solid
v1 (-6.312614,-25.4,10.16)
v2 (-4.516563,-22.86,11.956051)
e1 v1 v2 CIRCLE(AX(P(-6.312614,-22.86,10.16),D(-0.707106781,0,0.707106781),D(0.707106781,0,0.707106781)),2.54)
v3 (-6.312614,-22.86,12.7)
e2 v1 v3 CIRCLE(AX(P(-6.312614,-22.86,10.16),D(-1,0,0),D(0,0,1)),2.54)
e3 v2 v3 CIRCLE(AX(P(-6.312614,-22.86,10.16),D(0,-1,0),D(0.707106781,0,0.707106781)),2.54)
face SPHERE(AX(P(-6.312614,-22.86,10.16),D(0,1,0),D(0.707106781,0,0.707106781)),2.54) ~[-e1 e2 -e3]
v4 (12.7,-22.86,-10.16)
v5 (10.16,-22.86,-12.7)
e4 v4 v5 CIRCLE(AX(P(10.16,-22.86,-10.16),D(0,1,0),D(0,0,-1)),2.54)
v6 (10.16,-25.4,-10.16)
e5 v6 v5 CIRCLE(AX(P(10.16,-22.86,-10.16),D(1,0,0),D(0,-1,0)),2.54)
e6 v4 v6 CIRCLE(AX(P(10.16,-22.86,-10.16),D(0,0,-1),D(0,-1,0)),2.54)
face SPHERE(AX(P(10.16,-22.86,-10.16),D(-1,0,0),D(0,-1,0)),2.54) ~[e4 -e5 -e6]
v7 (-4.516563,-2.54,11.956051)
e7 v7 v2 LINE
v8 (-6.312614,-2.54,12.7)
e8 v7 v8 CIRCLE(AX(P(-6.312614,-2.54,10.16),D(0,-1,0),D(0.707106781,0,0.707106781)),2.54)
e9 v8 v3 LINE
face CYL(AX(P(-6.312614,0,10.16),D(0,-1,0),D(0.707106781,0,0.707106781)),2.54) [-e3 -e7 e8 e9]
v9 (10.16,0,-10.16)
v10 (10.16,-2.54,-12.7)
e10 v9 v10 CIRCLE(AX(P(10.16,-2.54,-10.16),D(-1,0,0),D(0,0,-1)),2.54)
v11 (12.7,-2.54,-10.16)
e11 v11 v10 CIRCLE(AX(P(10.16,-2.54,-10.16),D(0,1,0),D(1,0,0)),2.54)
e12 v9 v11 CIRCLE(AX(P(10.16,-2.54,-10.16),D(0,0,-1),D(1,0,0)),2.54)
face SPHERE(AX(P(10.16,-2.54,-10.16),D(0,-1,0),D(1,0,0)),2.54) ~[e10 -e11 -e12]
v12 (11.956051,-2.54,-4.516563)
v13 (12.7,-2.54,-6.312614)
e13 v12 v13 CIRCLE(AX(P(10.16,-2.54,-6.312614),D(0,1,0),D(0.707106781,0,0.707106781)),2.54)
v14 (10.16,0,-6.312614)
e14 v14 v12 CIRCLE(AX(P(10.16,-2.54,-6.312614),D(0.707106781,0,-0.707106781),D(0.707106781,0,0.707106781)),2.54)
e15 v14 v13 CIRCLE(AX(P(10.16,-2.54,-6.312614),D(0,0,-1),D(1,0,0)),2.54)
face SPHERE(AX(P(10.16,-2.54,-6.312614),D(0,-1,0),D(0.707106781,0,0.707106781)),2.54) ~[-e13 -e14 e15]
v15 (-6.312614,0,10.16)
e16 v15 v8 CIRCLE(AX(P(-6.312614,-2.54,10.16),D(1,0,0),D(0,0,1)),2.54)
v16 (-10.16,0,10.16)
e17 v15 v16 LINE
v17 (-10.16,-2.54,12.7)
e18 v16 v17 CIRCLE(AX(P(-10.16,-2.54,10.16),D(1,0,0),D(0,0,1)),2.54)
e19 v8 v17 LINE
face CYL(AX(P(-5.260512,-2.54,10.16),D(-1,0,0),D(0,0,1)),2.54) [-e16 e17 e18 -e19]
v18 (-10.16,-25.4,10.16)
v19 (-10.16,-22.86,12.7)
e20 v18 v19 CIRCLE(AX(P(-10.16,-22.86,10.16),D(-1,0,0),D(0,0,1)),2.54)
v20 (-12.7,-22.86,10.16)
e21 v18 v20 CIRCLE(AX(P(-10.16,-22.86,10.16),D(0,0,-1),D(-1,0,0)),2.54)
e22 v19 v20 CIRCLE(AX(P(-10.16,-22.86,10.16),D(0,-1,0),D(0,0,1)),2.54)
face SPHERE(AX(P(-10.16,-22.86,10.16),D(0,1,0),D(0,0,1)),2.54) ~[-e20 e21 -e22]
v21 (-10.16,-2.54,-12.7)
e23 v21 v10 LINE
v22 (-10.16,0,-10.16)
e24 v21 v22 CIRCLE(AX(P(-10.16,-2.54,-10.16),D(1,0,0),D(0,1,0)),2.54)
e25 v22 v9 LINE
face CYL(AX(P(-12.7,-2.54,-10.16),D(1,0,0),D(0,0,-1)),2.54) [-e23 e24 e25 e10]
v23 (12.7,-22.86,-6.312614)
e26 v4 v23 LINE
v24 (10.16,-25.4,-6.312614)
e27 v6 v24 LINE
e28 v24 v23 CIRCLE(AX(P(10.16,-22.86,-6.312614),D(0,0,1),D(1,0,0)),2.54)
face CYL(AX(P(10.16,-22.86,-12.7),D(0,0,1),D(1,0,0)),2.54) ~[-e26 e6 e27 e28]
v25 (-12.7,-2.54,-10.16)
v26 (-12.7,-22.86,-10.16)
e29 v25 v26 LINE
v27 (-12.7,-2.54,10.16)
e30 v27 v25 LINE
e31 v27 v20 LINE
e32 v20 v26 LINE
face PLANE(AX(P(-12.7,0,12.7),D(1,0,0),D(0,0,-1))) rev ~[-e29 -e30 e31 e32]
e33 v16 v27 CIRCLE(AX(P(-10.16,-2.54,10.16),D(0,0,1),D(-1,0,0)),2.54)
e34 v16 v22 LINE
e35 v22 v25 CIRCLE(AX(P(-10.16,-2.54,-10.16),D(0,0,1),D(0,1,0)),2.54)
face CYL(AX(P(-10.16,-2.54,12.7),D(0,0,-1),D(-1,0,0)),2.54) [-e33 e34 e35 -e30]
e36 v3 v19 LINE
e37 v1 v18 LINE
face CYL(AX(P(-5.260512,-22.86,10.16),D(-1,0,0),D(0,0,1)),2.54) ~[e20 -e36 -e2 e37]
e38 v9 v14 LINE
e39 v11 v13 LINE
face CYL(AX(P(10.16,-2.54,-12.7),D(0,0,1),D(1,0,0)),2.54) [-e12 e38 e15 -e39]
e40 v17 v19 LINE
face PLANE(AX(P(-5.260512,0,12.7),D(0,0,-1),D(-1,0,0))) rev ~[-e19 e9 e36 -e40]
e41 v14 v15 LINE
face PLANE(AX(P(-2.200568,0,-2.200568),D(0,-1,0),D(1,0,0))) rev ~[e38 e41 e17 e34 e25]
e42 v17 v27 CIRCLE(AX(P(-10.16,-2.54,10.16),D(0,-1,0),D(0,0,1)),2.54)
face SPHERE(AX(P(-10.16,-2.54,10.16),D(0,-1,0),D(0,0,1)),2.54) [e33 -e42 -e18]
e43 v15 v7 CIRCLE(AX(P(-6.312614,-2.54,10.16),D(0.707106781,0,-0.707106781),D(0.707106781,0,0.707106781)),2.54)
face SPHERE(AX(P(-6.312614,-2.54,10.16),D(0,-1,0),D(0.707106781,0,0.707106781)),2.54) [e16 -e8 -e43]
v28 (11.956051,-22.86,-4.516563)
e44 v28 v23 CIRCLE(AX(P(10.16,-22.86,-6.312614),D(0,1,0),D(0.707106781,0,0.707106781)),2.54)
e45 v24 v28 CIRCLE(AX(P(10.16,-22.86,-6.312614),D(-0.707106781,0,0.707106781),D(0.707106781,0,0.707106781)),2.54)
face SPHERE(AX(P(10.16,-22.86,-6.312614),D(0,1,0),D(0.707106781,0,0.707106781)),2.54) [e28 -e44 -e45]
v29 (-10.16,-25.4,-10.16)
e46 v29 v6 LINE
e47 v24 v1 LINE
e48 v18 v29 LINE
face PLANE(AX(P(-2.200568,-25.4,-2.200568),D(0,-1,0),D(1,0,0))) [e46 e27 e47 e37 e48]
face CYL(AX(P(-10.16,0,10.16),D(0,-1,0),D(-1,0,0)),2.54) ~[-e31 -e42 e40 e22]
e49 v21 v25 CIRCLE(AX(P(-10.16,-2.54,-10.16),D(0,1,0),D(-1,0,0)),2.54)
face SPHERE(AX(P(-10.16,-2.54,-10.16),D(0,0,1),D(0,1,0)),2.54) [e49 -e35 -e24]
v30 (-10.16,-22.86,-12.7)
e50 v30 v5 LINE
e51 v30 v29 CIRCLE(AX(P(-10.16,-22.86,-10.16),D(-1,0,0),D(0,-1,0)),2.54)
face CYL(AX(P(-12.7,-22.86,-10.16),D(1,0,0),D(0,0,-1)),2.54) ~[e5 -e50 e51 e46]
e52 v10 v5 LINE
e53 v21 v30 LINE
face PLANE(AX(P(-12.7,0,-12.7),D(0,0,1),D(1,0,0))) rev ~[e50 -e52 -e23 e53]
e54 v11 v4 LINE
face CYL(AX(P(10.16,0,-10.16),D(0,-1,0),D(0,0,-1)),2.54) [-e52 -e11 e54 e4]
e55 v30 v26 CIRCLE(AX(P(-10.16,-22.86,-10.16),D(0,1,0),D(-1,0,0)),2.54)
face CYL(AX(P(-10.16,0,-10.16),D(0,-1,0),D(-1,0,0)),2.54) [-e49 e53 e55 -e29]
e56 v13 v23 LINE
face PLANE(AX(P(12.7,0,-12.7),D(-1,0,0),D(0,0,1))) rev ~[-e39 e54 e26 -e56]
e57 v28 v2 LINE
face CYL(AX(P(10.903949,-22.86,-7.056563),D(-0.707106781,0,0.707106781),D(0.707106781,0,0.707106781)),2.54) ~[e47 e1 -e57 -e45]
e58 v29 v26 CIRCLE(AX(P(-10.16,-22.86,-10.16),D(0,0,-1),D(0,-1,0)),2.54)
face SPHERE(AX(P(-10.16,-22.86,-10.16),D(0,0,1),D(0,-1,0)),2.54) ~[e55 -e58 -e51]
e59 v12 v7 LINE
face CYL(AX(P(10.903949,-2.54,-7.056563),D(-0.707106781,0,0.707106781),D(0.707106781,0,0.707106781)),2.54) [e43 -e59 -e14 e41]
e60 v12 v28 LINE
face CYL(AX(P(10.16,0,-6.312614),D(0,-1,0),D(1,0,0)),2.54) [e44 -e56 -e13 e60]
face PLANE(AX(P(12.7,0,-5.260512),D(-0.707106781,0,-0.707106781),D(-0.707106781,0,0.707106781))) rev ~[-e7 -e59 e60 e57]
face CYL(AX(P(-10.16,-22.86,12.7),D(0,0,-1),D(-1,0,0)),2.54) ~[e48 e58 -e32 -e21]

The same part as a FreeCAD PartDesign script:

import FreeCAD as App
import Part
import Sketcher

V = App.Vector
Q = App.Units.Quantity

doc = App.newDocument("Part")
params = doc.addObject("Spreadsheet::Sheet", "Params")
for row, (alias, value) in enumerate([
    ("sketch1_width", "1 in"),
    ("sketch1_length", "1 in"),
    ("pad1_length", "1 in"),
    ("fillet_radius", "0.1 in"),
], start=1):
    params.set(f"A{row}", alias)
    params.set(f"B{row}", "=" + value)
    params.setAlias(f"B{row}", alias)

body = doc.addObject("PartDesign::Body", "Body")

sketch1 = body.newObject("Sketcher::SketchObject", "Sketch")
sketch1.AttachmentSupport = (doc.getObject("XZ_Plane"), [""])
sketch1.MapMode = "FlatFace"
sketch1.addGeometry(Part.LineSegment(V(-13, 13, 0), V(-13, -13, 0)), False)
sketch1.addGeometry(Part.LineSegment(V(-13, -13, 0), V(13, -13, 0)), False)
sketch1.addGeometry(Part.LineSegment(V(13, -13, 0), V(13, -5, 0)), False)
sketch1.addGeometry(Part.LineSegment(V(13, -5, 0), V(-5, 13, 0)), False)
sketch1.addGeometry(Part.LineSegment(V(-5, 13, 0), V(-13, 13, 0)), False)
sketch1.addConstraint(Sketcher.Constraint("Coincident", 0, 2, 1, 1))
sketch1.addConstraint(Sketcher.Constraint("Coincident", 1, 2, 2, 1))
sketch1.addConstraint(Sketcher.Constraint("Coincident", 2, 2, 3, 1))
sketch1.addConstraint(Sketcher.Constraint("Coincident", 3, 2, 4, 1))
sketch1.addConstraint(Sketcher.Constraint("Coincident", 4, 2, 0, 1))
sketch1.addConstraint(Sketcher.Constraint("Vertical", 0))
sketch1.addConstraint(Sketcher.Constraint("Horizontal", 1))
sketch1.addConstraint(Sketcher.Constraint("Vertical", 2))
sketch1.addConstraint(Sketcher.Constraint("Horizontal", 4))
sketch1.addConstraint(Sketcher.Constraint("Symmetric", 1, 2, 4, 2, -1, 1))
sketch1.addConstraint(Sketcher.Constraint("Equal", 1, 0))
sketch1.addConstraint(Sketcher.Constraint("Equal", 4, 2))
sketch1.addConstraint(Sketcher.Constraint("DistanceX", 1, 1, 1, 2, Q("1 in")))
sketch1.addConstraint(Sketcher.Constraint("Distance", 3, Q("1 in")))
sketch1.setExpression("Constraints[12]", "Params.sketch1_width")
sketch1.setExpression("Constraints[13]", "Params.sketch1_length")
pad1 = body.newObject("PartDesign::Pad", "Pad")
pad1.Profile = sketch1
pad1.setExpression("Length", "Params.pad1_length")
doc.recompute()

fillet = body.newObject("PartDesign::Fillet", "Fillet")
fillet.Base = (pad1, ["Edge1"])
fillet.UseAllEdges = True
fillet.setExpression("Radius", "Params.fillet_radius")

doc.recompute()
